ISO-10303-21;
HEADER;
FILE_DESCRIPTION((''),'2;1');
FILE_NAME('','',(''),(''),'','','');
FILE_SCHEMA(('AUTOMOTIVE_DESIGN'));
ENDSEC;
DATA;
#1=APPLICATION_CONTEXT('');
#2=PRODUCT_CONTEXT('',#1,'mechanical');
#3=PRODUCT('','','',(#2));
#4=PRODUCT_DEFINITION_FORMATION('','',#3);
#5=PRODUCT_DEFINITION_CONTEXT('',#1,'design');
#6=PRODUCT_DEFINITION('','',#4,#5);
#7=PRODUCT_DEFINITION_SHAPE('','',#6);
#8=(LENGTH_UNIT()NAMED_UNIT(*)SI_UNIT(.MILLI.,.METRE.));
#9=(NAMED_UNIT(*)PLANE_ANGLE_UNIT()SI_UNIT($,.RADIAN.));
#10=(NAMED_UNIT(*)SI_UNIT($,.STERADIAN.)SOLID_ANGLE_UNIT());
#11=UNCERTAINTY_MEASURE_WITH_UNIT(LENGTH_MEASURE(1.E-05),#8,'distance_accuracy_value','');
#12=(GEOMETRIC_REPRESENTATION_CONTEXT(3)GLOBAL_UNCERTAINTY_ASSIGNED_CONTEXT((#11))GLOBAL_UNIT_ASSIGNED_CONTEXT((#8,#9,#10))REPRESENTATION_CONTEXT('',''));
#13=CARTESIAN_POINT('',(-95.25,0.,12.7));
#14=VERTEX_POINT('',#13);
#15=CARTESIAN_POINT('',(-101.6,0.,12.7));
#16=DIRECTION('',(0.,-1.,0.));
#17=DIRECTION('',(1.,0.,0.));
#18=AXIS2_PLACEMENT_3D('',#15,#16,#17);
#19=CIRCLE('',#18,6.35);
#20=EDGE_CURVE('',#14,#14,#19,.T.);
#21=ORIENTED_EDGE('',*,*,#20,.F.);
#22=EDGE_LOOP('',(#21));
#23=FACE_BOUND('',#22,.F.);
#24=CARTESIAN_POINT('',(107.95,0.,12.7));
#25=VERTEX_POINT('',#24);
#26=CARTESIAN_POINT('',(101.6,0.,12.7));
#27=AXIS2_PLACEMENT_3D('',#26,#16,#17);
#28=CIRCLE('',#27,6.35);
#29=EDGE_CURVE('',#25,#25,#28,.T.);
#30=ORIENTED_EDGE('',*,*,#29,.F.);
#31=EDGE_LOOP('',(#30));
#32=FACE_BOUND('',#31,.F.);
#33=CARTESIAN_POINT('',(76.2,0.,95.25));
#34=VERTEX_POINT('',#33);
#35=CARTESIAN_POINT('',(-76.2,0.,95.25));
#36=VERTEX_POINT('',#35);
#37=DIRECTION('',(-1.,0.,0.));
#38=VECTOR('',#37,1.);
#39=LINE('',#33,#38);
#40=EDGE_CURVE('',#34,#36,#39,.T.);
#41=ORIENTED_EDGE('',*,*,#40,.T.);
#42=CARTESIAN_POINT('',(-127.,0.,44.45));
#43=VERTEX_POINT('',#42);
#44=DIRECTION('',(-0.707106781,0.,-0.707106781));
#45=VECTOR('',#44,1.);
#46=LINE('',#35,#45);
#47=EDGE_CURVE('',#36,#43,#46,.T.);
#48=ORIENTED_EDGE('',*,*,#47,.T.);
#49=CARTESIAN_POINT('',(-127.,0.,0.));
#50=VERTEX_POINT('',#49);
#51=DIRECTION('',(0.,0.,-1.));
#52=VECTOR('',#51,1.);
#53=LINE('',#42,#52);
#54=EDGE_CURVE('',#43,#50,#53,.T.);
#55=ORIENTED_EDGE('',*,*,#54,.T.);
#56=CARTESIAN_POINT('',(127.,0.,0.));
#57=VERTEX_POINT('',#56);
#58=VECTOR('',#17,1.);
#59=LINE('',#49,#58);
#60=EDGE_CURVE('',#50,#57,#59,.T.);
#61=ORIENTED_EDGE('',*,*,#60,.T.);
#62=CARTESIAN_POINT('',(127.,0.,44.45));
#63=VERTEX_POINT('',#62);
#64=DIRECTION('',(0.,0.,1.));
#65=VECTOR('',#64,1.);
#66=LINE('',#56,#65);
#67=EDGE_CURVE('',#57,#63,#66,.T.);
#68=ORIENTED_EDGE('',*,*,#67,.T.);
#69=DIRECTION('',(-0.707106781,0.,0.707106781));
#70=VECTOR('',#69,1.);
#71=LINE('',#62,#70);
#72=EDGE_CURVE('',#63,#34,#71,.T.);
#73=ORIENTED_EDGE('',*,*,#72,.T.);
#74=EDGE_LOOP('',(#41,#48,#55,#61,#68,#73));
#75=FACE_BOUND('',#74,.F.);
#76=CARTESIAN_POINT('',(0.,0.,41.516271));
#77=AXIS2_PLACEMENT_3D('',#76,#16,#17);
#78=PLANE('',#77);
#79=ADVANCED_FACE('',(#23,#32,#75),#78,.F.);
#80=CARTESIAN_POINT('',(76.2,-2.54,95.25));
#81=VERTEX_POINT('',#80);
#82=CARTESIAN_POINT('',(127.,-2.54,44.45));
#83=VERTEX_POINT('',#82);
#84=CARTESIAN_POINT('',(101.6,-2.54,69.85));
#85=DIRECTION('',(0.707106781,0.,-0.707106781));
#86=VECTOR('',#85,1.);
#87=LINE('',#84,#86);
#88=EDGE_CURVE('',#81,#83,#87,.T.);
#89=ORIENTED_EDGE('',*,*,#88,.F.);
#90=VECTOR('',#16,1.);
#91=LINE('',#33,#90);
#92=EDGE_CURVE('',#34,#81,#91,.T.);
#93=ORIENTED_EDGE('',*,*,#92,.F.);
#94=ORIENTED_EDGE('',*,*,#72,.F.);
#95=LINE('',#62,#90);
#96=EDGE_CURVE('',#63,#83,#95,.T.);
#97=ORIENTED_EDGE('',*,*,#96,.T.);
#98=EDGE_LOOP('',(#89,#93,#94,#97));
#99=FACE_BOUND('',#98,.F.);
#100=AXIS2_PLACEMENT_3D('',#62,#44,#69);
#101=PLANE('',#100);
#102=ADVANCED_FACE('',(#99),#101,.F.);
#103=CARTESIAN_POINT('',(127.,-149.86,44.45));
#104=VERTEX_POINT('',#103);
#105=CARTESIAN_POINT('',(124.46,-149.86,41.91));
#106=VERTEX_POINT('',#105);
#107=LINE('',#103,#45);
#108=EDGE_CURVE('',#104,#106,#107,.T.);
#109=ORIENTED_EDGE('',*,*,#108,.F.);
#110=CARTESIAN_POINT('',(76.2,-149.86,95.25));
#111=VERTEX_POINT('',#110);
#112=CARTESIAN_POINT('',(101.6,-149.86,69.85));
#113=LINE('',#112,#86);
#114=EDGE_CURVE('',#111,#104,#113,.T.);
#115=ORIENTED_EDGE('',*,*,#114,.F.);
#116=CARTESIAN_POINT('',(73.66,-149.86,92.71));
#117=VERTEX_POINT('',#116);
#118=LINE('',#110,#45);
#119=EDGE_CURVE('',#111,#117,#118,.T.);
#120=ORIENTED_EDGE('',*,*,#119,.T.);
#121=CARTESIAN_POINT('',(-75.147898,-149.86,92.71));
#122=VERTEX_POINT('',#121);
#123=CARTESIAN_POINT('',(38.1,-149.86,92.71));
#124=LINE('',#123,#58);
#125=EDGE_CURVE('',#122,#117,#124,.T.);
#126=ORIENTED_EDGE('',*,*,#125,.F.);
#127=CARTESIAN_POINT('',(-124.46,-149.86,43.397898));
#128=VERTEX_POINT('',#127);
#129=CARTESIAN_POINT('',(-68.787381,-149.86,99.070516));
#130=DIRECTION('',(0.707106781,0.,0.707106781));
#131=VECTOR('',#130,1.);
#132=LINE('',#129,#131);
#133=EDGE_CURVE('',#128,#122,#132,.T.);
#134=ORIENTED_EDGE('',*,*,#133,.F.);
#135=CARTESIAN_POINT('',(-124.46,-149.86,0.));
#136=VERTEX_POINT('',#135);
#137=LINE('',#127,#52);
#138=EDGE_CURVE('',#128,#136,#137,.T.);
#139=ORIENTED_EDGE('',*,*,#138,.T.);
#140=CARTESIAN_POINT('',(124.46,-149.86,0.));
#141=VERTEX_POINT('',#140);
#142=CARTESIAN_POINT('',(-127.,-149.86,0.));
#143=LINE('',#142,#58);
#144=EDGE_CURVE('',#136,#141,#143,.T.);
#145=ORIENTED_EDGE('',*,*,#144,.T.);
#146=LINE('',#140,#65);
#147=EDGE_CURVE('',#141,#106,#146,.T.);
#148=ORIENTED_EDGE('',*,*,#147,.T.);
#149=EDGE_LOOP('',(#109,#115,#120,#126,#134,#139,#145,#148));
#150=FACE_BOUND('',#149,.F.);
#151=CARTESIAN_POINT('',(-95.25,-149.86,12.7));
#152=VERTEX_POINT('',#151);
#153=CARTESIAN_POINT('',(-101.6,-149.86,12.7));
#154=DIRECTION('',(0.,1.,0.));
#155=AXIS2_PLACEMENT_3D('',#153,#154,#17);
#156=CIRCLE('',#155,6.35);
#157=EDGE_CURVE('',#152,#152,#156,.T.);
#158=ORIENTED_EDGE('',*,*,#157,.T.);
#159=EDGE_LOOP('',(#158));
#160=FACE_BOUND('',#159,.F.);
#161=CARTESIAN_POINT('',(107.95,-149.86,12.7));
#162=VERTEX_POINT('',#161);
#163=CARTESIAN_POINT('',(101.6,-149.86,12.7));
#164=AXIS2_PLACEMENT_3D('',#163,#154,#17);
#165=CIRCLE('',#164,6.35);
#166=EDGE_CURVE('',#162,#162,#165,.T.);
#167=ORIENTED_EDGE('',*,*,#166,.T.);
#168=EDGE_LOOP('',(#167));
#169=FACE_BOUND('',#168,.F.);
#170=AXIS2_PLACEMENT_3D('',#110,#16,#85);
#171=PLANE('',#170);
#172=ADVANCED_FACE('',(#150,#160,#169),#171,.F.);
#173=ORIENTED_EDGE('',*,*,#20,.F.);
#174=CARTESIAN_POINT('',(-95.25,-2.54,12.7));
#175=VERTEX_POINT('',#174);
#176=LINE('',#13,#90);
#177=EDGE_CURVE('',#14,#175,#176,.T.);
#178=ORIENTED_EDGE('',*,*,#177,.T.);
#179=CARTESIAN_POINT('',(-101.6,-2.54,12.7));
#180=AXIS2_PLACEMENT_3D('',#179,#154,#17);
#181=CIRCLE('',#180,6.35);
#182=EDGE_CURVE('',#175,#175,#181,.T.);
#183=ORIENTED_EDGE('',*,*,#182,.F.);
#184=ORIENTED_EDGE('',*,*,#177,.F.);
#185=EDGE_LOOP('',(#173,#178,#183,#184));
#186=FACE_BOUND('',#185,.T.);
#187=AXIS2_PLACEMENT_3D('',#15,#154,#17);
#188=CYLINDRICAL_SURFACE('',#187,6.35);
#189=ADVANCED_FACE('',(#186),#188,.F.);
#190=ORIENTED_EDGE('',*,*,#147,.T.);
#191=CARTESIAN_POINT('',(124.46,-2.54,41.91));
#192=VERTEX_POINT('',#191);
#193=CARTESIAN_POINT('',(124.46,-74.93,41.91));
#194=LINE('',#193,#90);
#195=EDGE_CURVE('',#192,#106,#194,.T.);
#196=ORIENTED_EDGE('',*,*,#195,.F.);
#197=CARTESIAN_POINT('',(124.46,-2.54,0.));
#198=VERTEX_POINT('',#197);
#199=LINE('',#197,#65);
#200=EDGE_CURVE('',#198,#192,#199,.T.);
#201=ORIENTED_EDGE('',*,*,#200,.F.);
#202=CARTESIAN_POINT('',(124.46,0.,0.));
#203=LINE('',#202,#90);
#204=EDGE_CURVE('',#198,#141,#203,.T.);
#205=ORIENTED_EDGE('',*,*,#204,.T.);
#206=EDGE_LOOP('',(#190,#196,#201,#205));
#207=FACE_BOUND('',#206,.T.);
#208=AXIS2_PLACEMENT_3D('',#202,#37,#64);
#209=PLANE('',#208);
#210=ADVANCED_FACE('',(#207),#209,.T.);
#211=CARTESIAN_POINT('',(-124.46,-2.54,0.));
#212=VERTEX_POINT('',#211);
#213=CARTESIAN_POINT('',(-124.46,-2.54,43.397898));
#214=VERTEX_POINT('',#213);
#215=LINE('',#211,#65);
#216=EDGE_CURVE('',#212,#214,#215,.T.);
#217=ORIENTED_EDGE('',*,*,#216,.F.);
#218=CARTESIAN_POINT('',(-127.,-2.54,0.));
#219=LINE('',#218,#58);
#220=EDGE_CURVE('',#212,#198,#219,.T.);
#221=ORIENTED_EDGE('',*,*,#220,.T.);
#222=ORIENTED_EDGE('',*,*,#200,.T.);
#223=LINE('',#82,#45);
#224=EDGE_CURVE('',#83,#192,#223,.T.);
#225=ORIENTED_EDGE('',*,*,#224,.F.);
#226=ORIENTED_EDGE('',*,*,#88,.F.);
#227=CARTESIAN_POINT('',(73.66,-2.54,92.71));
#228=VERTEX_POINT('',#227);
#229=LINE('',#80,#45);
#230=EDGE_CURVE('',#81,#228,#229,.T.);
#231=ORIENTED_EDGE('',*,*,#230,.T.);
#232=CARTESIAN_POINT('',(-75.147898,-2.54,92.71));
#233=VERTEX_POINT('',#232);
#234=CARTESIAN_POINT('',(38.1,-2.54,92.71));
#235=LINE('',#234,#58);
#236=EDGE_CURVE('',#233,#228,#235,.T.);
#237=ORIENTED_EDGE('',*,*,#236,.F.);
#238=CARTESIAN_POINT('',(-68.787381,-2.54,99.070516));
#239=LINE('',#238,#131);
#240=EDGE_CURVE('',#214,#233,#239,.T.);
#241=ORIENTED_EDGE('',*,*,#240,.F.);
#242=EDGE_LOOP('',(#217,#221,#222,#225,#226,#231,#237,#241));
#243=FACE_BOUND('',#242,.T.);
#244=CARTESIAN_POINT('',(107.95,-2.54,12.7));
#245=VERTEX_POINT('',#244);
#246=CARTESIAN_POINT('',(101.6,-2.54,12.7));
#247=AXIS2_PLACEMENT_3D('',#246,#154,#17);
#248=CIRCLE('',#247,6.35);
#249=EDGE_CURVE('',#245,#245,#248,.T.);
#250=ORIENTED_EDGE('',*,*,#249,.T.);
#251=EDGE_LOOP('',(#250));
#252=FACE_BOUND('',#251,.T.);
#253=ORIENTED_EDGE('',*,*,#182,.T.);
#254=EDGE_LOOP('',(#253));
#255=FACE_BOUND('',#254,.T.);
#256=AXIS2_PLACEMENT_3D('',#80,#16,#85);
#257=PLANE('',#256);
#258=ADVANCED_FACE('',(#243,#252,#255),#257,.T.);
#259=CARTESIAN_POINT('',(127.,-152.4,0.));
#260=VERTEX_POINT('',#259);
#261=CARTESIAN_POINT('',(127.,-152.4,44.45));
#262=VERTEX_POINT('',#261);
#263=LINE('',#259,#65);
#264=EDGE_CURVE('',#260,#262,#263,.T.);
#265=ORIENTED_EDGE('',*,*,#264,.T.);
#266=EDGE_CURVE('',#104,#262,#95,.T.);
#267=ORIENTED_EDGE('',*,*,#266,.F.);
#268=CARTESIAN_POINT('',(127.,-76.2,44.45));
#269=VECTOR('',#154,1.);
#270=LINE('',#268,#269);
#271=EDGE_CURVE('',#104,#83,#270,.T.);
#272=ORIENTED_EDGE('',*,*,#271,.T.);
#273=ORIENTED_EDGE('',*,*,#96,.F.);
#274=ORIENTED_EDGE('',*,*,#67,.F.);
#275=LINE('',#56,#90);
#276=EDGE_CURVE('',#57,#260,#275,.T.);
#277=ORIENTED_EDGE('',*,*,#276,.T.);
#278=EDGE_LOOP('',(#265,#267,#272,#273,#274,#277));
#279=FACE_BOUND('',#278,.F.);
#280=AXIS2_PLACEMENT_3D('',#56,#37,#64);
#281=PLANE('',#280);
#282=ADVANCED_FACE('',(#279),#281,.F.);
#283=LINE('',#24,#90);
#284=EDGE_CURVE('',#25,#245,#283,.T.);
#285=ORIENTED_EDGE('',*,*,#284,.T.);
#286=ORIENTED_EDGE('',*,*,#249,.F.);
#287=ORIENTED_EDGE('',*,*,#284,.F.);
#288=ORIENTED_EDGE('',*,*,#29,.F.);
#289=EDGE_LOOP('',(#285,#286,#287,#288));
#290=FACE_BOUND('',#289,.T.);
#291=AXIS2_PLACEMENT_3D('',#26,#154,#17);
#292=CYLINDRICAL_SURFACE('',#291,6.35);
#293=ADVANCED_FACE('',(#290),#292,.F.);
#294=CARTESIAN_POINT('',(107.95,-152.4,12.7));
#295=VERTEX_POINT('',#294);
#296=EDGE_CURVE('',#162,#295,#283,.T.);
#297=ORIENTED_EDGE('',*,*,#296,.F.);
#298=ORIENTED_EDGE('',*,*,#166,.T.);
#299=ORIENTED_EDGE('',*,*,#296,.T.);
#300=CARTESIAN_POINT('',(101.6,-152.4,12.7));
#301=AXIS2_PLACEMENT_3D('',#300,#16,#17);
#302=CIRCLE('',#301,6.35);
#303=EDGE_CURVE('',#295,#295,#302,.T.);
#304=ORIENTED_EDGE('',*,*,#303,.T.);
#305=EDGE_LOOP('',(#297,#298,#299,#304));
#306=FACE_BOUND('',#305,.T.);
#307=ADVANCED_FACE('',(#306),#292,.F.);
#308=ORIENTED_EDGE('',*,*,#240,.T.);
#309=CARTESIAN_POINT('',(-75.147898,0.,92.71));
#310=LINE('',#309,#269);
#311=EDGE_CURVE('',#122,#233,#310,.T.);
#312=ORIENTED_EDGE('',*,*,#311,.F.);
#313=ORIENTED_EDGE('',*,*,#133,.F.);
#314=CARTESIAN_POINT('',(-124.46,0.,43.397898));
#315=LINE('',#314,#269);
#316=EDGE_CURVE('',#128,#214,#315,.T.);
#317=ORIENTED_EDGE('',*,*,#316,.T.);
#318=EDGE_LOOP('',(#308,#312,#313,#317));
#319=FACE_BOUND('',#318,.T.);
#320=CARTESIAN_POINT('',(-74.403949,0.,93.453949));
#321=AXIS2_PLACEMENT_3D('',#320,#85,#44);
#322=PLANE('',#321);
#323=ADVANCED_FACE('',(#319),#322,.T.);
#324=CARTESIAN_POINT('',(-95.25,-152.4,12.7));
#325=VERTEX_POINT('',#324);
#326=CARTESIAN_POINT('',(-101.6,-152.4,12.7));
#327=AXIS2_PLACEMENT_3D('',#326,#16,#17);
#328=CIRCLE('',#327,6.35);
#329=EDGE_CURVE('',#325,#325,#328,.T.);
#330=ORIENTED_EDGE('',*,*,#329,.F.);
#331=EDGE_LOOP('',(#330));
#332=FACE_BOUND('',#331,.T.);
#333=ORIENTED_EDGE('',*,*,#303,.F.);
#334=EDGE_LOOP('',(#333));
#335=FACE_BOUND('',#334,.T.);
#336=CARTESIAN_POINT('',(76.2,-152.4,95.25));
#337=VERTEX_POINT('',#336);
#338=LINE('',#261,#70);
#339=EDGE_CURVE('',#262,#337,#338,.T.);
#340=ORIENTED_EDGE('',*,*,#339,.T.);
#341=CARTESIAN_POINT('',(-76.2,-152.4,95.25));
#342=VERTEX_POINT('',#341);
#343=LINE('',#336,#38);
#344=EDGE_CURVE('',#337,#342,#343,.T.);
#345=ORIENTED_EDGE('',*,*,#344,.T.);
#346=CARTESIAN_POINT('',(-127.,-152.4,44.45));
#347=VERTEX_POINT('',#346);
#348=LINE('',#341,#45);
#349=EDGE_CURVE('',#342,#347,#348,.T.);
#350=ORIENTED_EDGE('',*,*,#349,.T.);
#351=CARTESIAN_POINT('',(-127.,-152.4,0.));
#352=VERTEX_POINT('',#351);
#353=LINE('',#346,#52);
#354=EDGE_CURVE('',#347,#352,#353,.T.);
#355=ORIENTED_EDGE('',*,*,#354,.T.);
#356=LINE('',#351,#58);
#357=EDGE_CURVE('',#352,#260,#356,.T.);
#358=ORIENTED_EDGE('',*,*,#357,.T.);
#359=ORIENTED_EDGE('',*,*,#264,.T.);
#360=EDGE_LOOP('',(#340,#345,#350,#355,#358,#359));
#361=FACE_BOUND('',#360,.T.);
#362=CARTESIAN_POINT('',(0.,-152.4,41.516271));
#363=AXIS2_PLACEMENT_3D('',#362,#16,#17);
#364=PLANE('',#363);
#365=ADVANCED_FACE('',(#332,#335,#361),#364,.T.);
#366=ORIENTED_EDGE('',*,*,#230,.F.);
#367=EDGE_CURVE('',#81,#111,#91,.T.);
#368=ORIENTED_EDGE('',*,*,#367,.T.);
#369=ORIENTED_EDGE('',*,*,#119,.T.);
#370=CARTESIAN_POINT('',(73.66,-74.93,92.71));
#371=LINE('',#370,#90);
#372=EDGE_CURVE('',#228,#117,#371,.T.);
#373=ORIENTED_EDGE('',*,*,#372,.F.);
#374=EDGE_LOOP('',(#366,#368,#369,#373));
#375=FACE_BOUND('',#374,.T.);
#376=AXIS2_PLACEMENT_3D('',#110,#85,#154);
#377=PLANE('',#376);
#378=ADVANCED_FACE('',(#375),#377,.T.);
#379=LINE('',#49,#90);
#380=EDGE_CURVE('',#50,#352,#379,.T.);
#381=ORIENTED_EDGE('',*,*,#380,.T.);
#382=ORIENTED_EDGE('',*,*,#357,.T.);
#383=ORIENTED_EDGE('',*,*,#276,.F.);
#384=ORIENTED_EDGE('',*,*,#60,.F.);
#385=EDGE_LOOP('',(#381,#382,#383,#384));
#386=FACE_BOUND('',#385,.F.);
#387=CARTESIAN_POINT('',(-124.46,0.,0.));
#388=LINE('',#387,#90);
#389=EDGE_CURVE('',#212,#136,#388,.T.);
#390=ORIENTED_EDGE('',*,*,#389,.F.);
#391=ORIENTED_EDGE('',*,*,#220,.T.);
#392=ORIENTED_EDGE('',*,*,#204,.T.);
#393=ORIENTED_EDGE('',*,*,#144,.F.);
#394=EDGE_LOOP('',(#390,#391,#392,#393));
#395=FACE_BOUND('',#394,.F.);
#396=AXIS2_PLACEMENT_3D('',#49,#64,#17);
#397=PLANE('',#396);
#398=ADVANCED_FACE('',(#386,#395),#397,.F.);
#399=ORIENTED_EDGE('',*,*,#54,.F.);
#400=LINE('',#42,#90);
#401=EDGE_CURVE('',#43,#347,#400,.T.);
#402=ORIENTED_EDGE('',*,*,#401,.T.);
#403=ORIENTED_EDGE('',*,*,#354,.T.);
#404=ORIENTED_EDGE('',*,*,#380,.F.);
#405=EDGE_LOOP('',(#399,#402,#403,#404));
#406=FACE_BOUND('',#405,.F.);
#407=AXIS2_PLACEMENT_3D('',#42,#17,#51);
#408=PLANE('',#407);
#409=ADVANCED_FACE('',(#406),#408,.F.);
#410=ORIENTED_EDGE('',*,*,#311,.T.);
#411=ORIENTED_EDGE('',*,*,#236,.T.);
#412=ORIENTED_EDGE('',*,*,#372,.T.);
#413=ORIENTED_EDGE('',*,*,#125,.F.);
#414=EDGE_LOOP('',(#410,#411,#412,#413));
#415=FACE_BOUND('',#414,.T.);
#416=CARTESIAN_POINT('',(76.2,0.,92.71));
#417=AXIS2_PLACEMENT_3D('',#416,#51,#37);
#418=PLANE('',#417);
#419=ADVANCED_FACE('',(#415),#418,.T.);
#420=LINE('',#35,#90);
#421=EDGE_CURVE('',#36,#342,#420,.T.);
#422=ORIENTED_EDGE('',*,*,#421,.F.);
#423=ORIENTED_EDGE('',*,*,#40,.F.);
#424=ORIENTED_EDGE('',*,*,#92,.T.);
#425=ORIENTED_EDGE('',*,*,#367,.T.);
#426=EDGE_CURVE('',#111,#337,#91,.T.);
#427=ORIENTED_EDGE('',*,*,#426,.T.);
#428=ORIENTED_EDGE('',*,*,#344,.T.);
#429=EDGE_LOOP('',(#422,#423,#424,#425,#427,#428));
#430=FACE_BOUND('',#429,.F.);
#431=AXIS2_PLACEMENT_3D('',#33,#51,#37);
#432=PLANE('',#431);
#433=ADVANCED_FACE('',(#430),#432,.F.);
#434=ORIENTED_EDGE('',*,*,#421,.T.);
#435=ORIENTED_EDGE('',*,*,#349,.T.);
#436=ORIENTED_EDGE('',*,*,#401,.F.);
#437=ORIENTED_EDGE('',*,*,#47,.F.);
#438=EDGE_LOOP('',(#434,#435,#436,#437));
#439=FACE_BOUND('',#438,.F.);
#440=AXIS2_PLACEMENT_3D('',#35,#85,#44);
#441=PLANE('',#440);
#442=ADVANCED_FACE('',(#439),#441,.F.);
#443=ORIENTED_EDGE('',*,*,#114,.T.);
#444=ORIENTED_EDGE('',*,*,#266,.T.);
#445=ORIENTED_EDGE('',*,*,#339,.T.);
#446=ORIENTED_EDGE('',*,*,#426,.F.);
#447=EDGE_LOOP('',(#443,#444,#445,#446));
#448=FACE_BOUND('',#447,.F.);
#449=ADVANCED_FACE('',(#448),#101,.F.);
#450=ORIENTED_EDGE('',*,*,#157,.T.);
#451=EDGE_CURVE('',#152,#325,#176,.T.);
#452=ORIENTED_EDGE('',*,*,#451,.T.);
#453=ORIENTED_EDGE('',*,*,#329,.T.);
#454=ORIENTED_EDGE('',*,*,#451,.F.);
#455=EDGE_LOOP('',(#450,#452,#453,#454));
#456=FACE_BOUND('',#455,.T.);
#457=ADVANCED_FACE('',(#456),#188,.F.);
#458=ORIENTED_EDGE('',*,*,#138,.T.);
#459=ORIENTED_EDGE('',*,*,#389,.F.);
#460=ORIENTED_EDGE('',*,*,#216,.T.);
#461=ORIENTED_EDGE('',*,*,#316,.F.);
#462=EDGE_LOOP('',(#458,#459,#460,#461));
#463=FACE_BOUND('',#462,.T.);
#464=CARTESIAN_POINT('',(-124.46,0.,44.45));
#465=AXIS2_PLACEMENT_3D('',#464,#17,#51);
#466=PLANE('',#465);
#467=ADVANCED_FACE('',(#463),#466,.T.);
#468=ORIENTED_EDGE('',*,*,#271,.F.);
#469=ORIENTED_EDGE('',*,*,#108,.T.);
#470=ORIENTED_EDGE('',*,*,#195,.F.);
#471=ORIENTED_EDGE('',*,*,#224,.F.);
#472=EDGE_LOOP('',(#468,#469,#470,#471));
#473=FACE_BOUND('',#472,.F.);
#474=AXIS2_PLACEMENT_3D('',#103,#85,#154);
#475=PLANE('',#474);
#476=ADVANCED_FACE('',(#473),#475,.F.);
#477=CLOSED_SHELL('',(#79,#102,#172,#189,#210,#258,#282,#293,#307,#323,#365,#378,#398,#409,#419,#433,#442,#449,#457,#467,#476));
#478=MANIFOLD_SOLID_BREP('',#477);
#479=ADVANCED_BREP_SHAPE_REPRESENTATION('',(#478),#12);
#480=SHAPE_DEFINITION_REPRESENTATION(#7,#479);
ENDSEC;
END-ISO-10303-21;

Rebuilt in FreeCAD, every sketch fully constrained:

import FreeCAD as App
import Part
import Sketcher
Q = App.Units.Quantity


def faces_at(feature, points):
    """Names of the faces that lie closest to the given points."""
    faces = feature.Shape.Faces
    near = lambda p: min(range(len(faces)), key=lambda i: faces[i].distToShape(Part.Vertex(*p))[0])
    return sorted({f"Face{near(p) + 1}" for p in points})


def add_polygon(sketch, points):
    """Adds a closed chain of lines whose ends are joined by coincident constraints."""
    first, n = sketch.GeometryCount, len(points)
    for a, b in zip(points, points[1:] + points[:1]):
        sketch.addGeometry(Part.LineSegment(App.Vector(*a, 0), App.Vector(*b, 0)), False)
    for i in range(n):
        sketch.addConstraint(Sketcher.Constraint("Coincident", first + i, 2, first + (i + 1) % n, 1))

doc = App.newDocument("Part")
body = doc.addObject("PartDesign::Body", "Body")

# Sketch on XZ plane
sketch1 = body.newObject("Sketcher::SketchObject", "Sketch")
sketch1.AttachmentSupport = (doc.getObject("XZ_Plane"), [""])
sketch1.MapMode = "FlatFace"
add_polygon(sketch1, [(-76, 95), (-127, 44), (-127, 0), (127, 0), (127, 44), (76, 95)])  # lines 0-5
sketch1.addGeometry(Part.Circle(App.Vector(-102, 13, 0), App.Vector(0, 0, 1), 6), False)  # 6
sketch1.addGeometry(Part.Circle(App.Vector(102, 13, 0), App.Vector(0, 0, 1), 6), False)  # 7
sketch1.addConstraint([
    Sketcher.Constraint("Vertical", 1),
    Sketcher.Constraint("Horizontal", 2),
    Sketcher.Constraint("Vertical", 3),
    Sketcher.Constraint("Horizontal", 5),
    Sketcher.Constraint("Equal", 6, 7),
    Sketcher.Constraint("Symmetric", 1, 2, 2, 2, -1, 1),
    Sketcher.Constraint("Symmetric", 6, 3, 7, 3, -2),
    Sketcher.Constraint("Perpendicular", 0, 4),
    Sketcher.Constraint("Horizontal", 0, 2, 3, 2),
    Sketcher.Constraint("Equal", 0, 4),
    Sketcher.Constraint("Diameter", 6, Q("0.5 in")),
    Sketcher.Constraint("DistanceX", 2, 1, 2, 2, Q("10 in")),
    Sketcher.Constraint("DistanceX", 5, 2, 5, 1, Q("6 in")),
    Sketcher.Constraint("DistanceX", 6, 3, -1, 1, Q("4 in")),
    Sketcher.Constraint("DistanceY", 1, 2, 1, 1, Q("1.75 in")),
    Sketcher.Constraint("DistanceY", -1, 1, 6, 3, Q("0.5 in")),
])
pad1 = body.newObject("PartDesign::Pad", "Pad")
pad1.Profile = sketch1
pad1.Length = Q("6 in")
doc.recompute()

thickness = body.newObject("PartDesign::Thickness", "Thickness")
thickness.Base = (pad1, faces_at(pad1, [(0, -76.2, 0)]))
thickness.Value = Q("0.1 in")
thickness.Reversed = True
thickness.Join = "Arc"

# Sketch on XY plane
sketch2 = body.newObject("Sketcher::SketchObject", "Sketch001")
sketch2.AttachmentSupport = (doc.getObject("XY_Plane"), [""])
sketch2.MapMode = "FlatFace"
add_polygon(sketch2, [(-124, -150), (-124, -3), (124, -3), (124, -150)])  # lines 0-3
sketch2.addConstraint([
    Sketcher.Constraint("Vertical", 0),
    Sketcher.Constraint("Horizontal", 1),
    Sketcher.Constraint("Vertical", 2),
    Sketcher.Constraint("Horizontal", 3),
    Sketcher.Constraint("DistanceX", 1, 1, 1, 2, Q("9.8 in")),
    Sketcher.Constraint("DistanceY", 0, 1, 0, 2, Q("5.8 in")),
    Sketcher.Constraint("DistanceX", 0, 2, -1, 1, Q("4.9 in")),
    Sketcher.Constraint("DistanceY", 0, 2, -1, 1, Q("0.1 in")),
])
pocket1 = body.newObject("PartDesign::Pocket", "Pocket")
pocket1.Profile = sketch2
pocket1.Length = Q("1 in")
pocket1.Reversed = True

# Sketch on an angled plane
sketch3 = body.newObject("Sketcher::SketchObject", "Sketch002")
sketch3.Placement = App.Placement(App.Vector(85.725, 0, 85.725), App.Rotation(App.Vector(0.707106781, 0, -0.707106781), App.Vector(0, 0.999999999, 0), App.Vector(0.707106781, 0, 0.707106781), "ZXY"))
add_polygon(sketch3, [(-13, -3), (-13, -150), (58, -150), (58, -3)])  # lines 0-3
sketch3.addConstraint([
    Sketcher.Constraint("Vertical", 0),
    Sketcher.Constraint("Horizontal", 1),
    Sketcher.Constraint("Vertical", 2),
    Sketcher.Constraint("Horizontal", 3),
    Sketcher.Constraint("DistanceY", 0, 2, 0, 1, Q("5.8 in")),
    Sketcher.Constraint("DistanceY", 0, 2, -1, 1, Q("5.9 in")),
    Sketcher.Constraint("DistanceX", 1, 1, 1, 2, Q("71.842049 mm")),
    Sketcher.Constraint("DistanceX", 0, 2, -1, 1, Q("13.470384 mm")),
])
pocket2 = body.newObject("PartDesign::Pocket", "Pocket001")
pocket2.Profile = sketch3
pocket2.Length = Q("1 in")

doc.recompute()
